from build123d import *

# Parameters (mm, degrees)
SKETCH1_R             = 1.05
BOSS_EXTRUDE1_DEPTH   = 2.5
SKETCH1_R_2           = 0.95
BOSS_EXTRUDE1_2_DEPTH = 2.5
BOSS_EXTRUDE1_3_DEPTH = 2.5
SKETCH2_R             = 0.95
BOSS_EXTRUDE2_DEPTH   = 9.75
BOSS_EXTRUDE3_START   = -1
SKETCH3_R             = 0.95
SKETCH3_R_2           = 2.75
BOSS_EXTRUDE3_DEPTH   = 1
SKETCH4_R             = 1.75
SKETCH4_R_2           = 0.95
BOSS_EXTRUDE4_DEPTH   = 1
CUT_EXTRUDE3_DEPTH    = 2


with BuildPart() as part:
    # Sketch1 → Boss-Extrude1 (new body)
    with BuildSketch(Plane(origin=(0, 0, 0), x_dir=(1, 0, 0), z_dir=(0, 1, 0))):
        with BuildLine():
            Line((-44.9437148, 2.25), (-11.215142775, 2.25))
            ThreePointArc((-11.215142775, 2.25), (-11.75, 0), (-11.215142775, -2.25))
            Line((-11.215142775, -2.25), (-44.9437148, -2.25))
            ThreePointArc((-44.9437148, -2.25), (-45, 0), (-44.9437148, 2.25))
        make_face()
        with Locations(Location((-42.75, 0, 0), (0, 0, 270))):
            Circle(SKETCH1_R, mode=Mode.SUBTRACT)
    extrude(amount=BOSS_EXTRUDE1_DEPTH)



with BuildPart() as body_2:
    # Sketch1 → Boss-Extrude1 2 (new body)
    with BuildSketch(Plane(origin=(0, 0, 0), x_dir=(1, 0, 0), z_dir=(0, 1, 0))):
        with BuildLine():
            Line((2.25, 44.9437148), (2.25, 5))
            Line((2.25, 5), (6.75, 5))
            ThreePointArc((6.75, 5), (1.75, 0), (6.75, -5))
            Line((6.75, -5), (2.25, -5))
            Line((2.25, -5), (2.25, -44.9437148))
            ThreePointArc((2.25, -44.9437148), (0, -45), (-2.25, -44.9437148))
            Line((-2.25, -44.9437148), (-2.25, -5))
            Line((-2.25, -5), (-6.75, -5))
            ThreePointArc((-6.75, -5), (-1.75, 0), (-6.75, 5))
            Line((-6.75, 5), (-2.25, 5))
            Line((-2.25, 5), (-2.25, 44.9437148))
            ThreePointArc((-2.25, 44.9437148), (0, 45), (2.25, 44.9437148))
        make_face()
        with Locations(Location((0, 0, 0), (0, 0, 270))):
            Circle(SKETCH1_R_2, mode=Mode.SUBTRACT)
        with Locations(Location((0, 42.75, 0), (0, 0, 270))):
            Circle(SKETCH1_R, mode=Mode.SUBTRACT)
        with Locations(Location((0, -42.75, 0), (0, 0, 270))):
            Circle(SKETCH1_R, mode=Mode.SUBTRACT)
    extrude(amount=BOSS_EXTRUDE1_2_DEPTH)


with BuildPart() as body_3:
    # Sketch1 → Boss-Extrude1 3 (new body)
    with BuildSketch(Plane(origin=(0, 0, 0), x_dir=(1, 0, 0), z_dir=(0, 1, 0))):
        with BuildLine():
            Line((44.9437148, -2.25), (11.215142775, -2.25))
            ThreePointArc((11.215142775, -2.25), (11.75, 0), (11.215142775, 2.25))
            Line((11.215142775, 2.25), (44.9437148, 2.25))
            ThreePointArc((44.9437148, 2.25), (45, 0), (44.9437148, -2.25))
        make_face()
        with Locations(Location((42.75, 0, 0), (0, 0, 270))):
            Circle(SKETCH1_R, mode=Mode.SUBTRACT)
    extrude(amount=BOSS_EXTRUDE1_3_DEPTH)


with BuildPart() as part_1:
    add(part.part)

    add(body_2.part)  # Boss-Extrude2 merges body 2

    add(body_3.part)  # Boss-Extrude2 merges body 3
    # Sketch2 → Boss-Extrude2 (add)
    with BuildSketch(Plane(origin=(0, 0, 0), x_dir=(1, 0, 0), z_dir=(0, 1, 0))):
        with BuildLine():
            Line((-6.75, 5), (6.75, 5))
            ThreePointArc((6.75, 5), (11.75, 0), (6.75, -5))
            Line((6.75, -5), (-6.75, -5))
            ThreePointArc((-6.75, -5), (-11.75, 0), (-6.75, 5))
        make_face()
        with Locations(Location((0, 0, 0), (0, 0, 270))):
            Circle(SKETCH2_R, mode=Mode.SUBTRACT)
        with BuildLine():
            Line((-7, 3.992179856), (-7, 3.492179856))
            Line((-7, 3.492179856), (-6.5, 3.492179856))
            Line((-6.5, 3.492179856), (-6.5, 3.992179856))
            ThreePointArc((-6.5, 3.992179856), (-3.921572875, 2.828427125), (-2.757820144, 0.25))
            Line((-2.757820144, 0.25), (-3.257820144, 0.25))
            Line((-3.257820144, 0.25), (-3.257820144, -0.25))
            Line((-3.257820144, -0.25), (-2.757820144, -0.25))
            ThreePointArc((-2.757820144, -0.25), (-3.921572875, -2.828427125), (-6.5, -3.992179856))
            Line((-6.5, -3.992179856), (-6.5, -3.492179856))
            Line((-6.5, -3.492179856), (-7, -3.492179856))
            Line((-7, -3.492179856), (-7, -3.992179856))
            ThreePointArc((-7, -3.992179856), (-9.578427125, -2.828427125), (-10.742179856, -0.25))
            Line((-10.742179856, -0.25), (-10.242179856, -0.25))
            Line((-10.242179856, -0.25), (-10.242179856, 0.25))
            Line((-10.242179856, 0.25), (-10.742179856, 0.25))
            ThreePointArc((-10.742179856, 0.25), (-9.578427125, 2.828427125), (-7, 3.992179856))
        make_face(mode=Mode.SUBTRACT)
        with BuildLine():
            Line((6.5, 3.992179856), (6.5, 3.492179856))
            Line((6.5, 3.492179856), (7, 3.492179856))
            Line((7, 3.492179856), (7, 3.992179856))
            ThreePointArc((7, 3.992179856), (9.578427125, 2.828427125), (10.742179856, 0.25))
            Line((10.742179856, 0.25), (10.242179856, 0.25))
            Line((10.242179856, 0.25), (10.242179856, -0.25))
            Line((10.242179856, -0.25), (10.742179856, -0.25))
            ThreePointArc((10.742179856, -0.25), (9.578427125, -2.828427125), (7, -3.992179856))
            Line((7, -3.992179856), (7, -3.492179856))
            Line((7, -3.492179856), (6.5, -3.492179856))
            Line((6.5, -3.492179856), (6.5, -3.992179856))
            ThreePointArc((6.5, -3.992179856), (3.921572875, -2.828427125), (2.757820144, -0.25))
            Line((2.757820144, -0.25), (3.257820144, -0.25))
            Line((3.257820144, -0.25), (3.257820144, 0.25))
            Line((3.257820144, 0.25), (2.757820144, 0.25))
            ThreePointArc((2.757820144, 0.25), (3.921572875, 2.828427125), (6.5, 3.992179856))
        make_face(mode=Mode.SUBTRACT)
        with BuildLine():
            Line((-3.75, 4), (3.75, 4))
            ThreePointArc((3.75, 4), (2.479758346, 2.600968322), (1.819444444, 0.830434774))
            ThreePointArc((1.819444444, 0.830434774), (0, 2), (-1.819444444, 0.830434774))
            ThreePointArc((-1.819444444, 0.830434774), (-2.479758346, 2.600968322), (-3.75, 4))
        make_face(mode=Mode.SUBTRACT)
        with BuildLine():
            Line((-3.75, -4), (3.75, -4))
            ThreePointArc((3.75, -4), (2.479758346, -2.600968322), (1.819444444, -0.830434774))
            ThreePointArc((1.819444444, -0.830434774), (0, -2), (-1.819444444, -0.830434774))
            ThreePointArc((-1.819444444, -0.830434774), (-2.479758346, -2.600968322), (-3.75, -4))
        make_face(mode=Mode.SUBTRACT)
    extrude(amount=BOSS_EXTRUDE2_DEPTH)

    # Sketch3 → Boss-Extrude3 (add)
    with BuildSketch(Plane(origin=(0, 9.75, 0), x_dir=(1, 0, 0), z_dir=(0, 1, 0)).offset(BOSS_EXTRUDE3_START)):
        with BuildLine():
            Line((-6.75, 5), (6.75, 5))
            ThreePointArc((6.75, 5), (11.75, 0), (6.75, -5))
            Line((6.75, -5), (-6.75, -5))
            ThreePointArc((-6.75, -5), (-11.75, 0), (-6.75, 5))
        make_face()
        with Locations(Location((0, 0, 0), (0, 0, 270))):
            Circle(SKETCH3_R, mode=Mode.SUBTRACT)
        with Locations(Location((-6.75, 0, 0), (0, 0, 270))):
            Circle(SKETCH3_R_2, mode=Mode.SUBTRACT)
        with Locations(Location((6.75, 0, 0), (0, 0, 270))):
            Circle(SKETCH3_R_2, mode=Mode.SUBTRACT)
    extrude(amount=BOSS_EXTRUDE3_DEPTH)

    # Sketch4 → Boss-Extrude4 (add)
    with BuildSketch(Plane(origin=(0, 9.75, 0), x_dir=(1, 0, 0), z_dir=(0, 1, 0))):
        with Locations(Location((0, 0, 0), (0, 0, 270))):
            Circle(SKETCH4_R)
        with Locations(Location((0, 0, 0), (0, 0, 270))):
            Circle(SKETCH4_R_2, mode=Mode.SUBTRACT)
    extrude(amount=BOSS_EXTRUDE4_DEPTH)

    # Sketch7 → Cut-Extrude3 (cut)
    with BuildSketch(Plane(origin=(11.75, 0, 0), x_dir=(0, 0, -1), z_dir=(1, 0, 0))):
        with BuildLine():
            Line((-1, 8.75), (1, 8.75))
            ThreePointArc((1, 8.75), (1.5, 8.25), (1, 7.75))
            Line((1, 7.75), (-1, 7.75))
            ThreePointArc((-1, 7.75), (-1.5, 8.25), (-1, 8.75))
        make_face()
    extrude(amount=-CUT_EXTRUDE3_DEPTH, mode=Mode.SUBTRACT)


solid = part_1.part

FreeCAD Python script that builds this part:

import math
import FreeCAD as App
import Part
import Sketcher
Q = App.Units.Quantity

doc = App.newDocument("Part")
body = doc.addObject("PartDesign::Body", "Body")

# Sketch on XZ plane
sketch1 = doc.addObject("Sketcher::SketchObject", "Sketch")
body.addObject(sketch1)
sketch1.AttachmentSupport = (doc.XZ_Plane, [""])
sketch1.MapMode = "FlatFace"
sketch1.addGeometry(Part.LineSegment(App.Vector(-11.2, -2.2, 0), App.Vector(-44.9, -2.2, 0)), False)
sketch1.addGeometry(Part.ArcOfCircle(Part.Circle(App.Vector(0, 0, 0), App.Vector(0, 0, 1), 45), math.radians(177.13), math.radians(182.87)), False)
sketch1.addGeometry(Part.LineSegment(App.Vector(-44.9, 2.2, 0), App.Vector(-11.2, 2.2, 0)), False)
sketch1.addGeometry(Part.ArcOfCircle(Part.Circle(App.Vector(-6.7, 0, 0), App.Vector(0, 0, 1), 5), math.radians(153), math.radians(207)), False)
sketch1.addGeometry(Part.Circle(App.Vector(-42.8, 0, 0), App.Vector(0, 0, 1), 1.1), False)
sketch1.addConstraint(Sketcher.Constraint("Coincident", 0, 2, 1, 2))
sketch1.addConstraint(Sketcher.Constraint("Coincident", 1, 1, 2, 1))
sketch1.addConstraint(Sketcher.Constraint("Coincident", 2, 2, 3, 1))
sketch1.addConstraint(Sketcher.Constraint("Coincident", 3, 2, 0, 1))
sketch1.addConstraint(Sketcher.Constraint("Horizontal", 0))
sketch1.addConstraint(Sketcher.Constraint("Horizontal", 2))
sketch1.addConstraint(Sketcher.Constraint("Coincident", 1, 3, -1, 1))
sketch1.addConstraint(Sketcher.Constraint("Symmetric", 2, 2, 3, 2, -1))
sketch1.addConstraint(Sketcher.Constraint("PointOnObject", 4, 3, -1))
sketch1.addConstraint(Sketcher.Constraint("Radius", 1, Q("45 mm")))
sketch1.addConstraint(Sketcher.Constraint("Radius", 3, Q("5 mm")))
sketch1.addConstraint(Sketcher.Constraint("Diameter", 4, Q("2.1 mm")))
sketch1.addConstraint(Sketcher.Constraint("DistanceX", 4, 3, 3, 3, Q("36 mm")))
sketch1.addConstraint(Sketcher.Constraint("DistanceY", 0, 2, 1, 1, Q("4.5 mm")))
sketch1.addConstraint(Sketcher.Constraint("DistanceX", 3, 3, -1, 1, Q("6.75 mm")))
pad1 = doc.addObject("PartDesign::Pad", "Pad")
body.addObject(pad1)
pad1.Profile = sketch1
pad1.Length = 2.5
pad1.Reversed = True
body2 = doc.addObject("PartDesign::Body", "Body001")

# Sketch on XZ plane
sketch2 = doc.addObject("Sketcher::SketchObject", "Sketch001")
body2.addObject(sketch2)
sketch2.AttachmentSupport = (doc.getObject("XZ_Plane001"), [""])
sketch2.MapMode = "FlatFace"
sketch2.addGeometry(Part.LineSegment(App.Vector(2.2, -5, 0), App.Vector(2.2, -44.9, 0)), False)
sketch2.addGeometry(Part.ArcOfCircle(Part.Circle(App.Vector(0, 0, 0), App.Vector(0, 0, 1), 45), math.radians(-92.87), math.radians(-87.13)), False)
sketch2.addGeometry(Part.LineSegment(App.Vector(-2.2, -44.9, 0), App.Vector(-2.2, -5, 0)), False)
sketch2.addGeometry(Part.LineSegment(App.Vector(-2.2, -5, 0), App.Vector(-6.8, -5, 0)), False)
sketch2.addGeometry(Part.ArcOfCircle(Part.Circle(App.Vector(-6.8, 0, 0), App.Vector(0, 0, 1), 5), math.radians(-90), math.radians(90)), False)
sketch2.addGeometry(Part.LineSegment(App.Vector(-6.8, 5, 0), App.Vector(-2.2, 5, 0)), False)
sketch2.addGeometry(Part.LineSegment(App.Vector(-2.2, 5, 0), App.Vector(-2.2, 44.9, 0)), False)
sketch2.addGeometry(Part.ArcOfCircle(Part.Circle(App.Vector(0, 0, 0), App.Vector(0, 0, 1), 45), math.radians(87.13), math.radians(92.87)), False)
sketch2.addGeometry(Part.LineSegment(App.Vector(2.2, 44.9, 0), App.Vector(2.2, 5, 0)), False)
sketch2.addGeometry(Part.LineSegment(App.Vector(2.2, 5, 0), App.Vector(6.8, 5, 0)), False)
sketch2.addGeometry(Part.ArcOfCircle(Part.Circle(App.Vector(6.8, 0, 0), App.Vector(0, 0, 1), 5), math.radians(90), math.radians(270)), False)
sketch2.addGeometry(Part.LineSegment(App.Vector(6.8, -5, 0), App.Vector(2.2, -5, 0)), False)
sketch2.addGeometry(Part.Circle(App.Vector(0, 42.8, 0), App.Vector(0, 0, 1), 1.1), False)
sketch2.addGeometry(Part.Circle(App.Vector(0, 0, 0), App.Vector(0, 0, 1), 0.9), False)
sketch2.addGeometry(Part.Circle(App.Vector(0, -42.8, 0), App.Vector(0, 0, 1), 1.1), False)
sketch2.addConstraint(Sketcher.Constraint("Coincident", 0, 2, 1, 2))
sketch2.addConstraint(Sketcher.Constraint("Coincident", 1, 1, 2, 1))
sketch2.addConstraint(Sketcher.Constraint("Coincident", 2, 2, 3, 1))
sketch2.addConstraint(Sketcher.Constraint("Tangent", 3, 2, 4, 1))
sketch2.addConstraint(Sketcher.Constraint("Tangent", 4, 2, 5, 1))
sketch2.addConstraint(Sketcher.Constraint("Coincident", 5, 2, 6, 1))
sketch2.addConstraint(Sketcher.Constraint("Coincident", 6, 2, 7, 2))
sketch2.addConstraint(Sketcher.Constraint("Coincident", 7, 1, 8, 1))
sketch2.addConstraint(Sketcher.Constraint("Coincident", 8, 2, 9, 1))
sketch2.addConstraint(Sketcher.Constraint("Tangent", 9, 2, 10, 1))
sketch2.addConstraint(Sketcher.Constraint("Tangent", 10, 2, 11, 1))
sketch2.addConstraint(Sketcher.Constraint("Coincident", 11, 2, 0, 1))
sketch2.addConstraint(Sketcher.Constraint("Vertical", 0))
sketch2.addConstraint(Sketcher.Constraint("Vertical", 2))
sketch2.addConstraint(Sketcher.Constraint("Horizontal", 3))
sketch2.addConstraint(Sketcher.Constraint("Horizontal", 5))
sketch2.addConstraint(Sketcher.Constraint("Vertical", 6))
sketch2.addConstraint(Sketcher.Constraint("Vertical", 8))
sketch2.addConstraint(Sketcher.Constraint("Horizontal", 9))
sketch2.addConstraint(Sketcher.Constraint("Horizontal", 11))
sketch2.addConstraint(Sketcher.Constraint("Coincident", 1, 3, -1, 1))
sketch2.addConstraint(Sketcher.Constraint("Coincident", 7, 3, -1, 1))
sketch2.addConstraint(Sketcher.Constraint("Coincident", 13, 3, -1, 1))
sketch2.addConstraint(Sketcher.Constraint("Equal", 1, 7))
sketch2.addConstraint(Sketcher.Constraint("Equal", 4, 10))
sketch2.addConstraint(Sketcher.Constraint("Equal", 12, 14))
sketch2.addConstraint(Sketcher.Constraint("Symmetric", 4, 3, 10, 3, -1, 1))
sketch2.addConstraint(Sketcher.Constraint("Symmetric", 12, 3, 14, 3, -1, 1))
sketch2.addConstraint(Sketcher.Constraint("Symmetric", 5, 2, 8, 2, -2))
sketch2.addConstraint(Sketcher.Constraint("PointOnObject", 12, 3, -2))
sketch2.addConstraint(Sketcher.Constraint("Horizontal", 0, 2, 1, 1))
sketch2.addConstraint(Sketcher.Constraint("Vertical", 2, 2, 5, 2))
sketch2.addConstraint(Sketcher.Constraint("Radius", 1, Q("45 mm")))
sketch2.addConstraint(Sketcher.Constraint("Radius", 4, Q("5 mm")))
sketch2.addConstraint(Sketcher.Constraint("Diameter", 12, Q("2.1 mm")))
sketch2.addConstraint(Sketcher.Constraint("Diameter", 13, Q("1.9 mm")))
sketch2.addConstraint(Sketcher.Constraint("DistanceX", 3, 2, 3, 1, Q("4.5 mm")))
sketch2.addConstraint(Sketcher.Constraint("DistanceX", 2, 2, 10, 3, Q("9 mm")))
sketch2.addConstraint(Sketcher.Constraint("DistanceY", -1, 1, 12, 3, Q("42.75 mm")))
pad2 = doc.addObject("PartDesign::Pad", "Pad001")
body2.addObject(pad2)
pad2.Profile = sketch2
pad2.Length = 2.5
pad2.Reversed = True
body3 = doc.addObject("PartDesign::Body", "Body002")

# Sketch on XZ plane
sketch3 = doc.addObject("Sketcher::SketchObject", "Sketch002")
body3.addObject(sketch3)
sketch3.AttachmentSupport = (doc.getObject("XZ_Plane002"), [""])
sketch3.MapMode = "FlatFace"
sketch3.addGeometry(Part.LineSegment(App.Vector(11.2, 2.2, 0), App.Vector(44.9, 2.2, 0)), False)
sketch3.addGeometry(Part.ArcOfCircle(Part.Circle(App.Vector(0, 0, 0), App.Vector(0, 0, 1), 45), math.radians(-2.87), math.radians(2.87)), False)
sketch3.addGeometry(Part.LineSegment(App.Vector(44.9, -2.2, 0), App.Vector(11.2, -2.2, 0)), False)
sketch3.addGeometry(Part.ArcOfCircle(Part.Circle(App.Vector(6.7, 0, 0), App.Vector(0, 0, 1), 5), math.radians(-27), math.radians(27)), False)
sketch3.addGeometry(Part.Circle(App.Vector(42.8, 0, 0), App.Vector(0, 0, 1), 1.1), False)
sketch3.addConstraint(Sketcher.Constraint("Coincident", 0, 2, 1, 2))
sketch3.addConstraint(Sketcher.Constraint("Coincident", 1, 1, 2, 1))
sketch3.addConstraint(Sketcher.Constraint("Coincident", 2, 2, 3, 1))
sketch3.addConstraint(Sketcher.Constraint("Coincident", 3, 2, 0, 1))
sketch3.addConstraint(Sketcher.Constraint("Horizontal", 0))
sketch3.addConstraint(Sketcher.Constraint("Horizontal", 2))
sketch3.addConstraint(Sketcher.Constraint("Coincident", 1, 3, -1, 1))
sketch3.addConstraint(Sketcher.Constraint("Symmetric", 2, 2, 3, 2, -1))
sketch3.addConstraint(Sketcher.Constraint("PointOnObject", 4, 3, -1))
sketch3.addConstraint(Sketcher.Constraint("Radius", 1, Q("45 mm")))
sketch3.addConstraint(Sketcher.Constraint("Radius", 3, Q("5 mm")))
sketch3.addConstraint(Sketcher.Constraint("Diameter", 4, Q("2.1 mm")))
sketch3.addConstraint(Sketcher.Constraint("DistanceX", 3, 3, 4, 3, Q("36 mm")))
sketch3.addConstraint(Sketcher.Constraint("DistanceY", 1, 1, 0, 2, Q("4.5 mm")))
sketch3.addConstraint(Sketcher.Constraint("DistanceX", -1, 1, 3, 3, Q("6.75 mm")))
pad3 = doc.addObject("PartDesign::Pad", "Pad002")
body3.addObject(pad3)
pad3.Profile = sketch3
pad3.Length = 2.5
pad3.Reversed = True
body.AllowCompound = True
doc.recompute()

boolean = doc.addObject("PartDesign::Boolean", "Boolean")
body.addObject(boolean)
boolean.Type = "Fuse"
boolean.addObjects([body2])
doc.recompute()

boolean2 = doc.addObject("PartDesign::Boolean", "Boolean001")
body.addObject(boolean2)
boolean2.Type = "Fuse"
boolean2.addObjects([body3])

# Sketch on XZ plane
sketch4 = doc.addObject("Sketcher::SketchObject", "Sketch003")
body.addObject(sketch4)
sketch4.AttachmentSupport = (doc.XZ_Plane, [""])
sketch4.MapMode = "FlatFace"
sketch4.addGeometry(Part.LineSegment(App.Vector(6.8, -5, 0), App.Vector(-6.8, -5, 0)), False)
sketch4.addGeometry(Part.ArcOfCircle(Part.Circle(App.Vector(-6.8, 0, 0), App.Vector(0, 0, 1), 5), math.radians(90), math.radians(270)), False)
sketch4.addGeometry(Part.LineSegment(App.Vector(-6.8, 5, 0), App.Vector(6.8, 5, 0)), False)
sketch4.addGeometry(Part.ArcOfCircle(Part.Circle(App.Vector(6.8, 0, 0), App.Vector(0, 0, 1), 5), math.radians(-90), math.radians(90)), False)
sketch4.addGeometry(Part.LineSegment(App.Vector(6.5, -4, 0), App.Vector(6.5, -3.5, 0)), False)
sketch4.addGeometry(Part.LineSegment(App.Vector(6.5, -3.5, 0), App.Vector(7, -3.5, 0)), False)
sketch4.addGeometry(Part.LineSegment(App.Vector(7, -3.5, 0), App.Vector(7, -4, 0)), False)
sketch4.addGeometry(Part.ArcOfCircle(Part.Circle(App.Vector(6.8, 0, 0), App.Vector(0, 0, 1), 4), math.radians(-86), math.radians(-4)), False)
sketch4.addGeometry(Part.LineSegment(App.Vector(10.7, -0.2, 0), App.Vector(10.2, -0.2, 0)), False)
sketch4.addGeometry(Part.LineSegment(App.Vector(10.2, -0.2, 0), App.Vector(10.2, 0.2, 0)), False)
sketch4.addGeometry(Part.LineSegment(App.Vector(10.2, 0.2, 0), App.Vector(10.7, 0.2, 0)), False)
sketch4.addGeometry(Part.ArcOfCircle(Part.Circle(App.Vector(6.8, 0, 0), App.Vector(0, 0, 1), 4), math.radians(4), math.radians(86)), False)
sketch4.addGeometry(Part.LineSegment(App.Vector(7, 4, 0), App.Vector(7, 3.5, 0)), False)
sketch4.addGeometry(Part.LineSegment(App.Vector(7, 3.5, 0), App.Vector(6.5, 3.5, 0)), False)
sketch4.addGeometry(Part.LineSegment(App.Vector(6.5, 3.5, 0), App.Vector(6.5, 4, 0)), False)
sketch4.addGeometry(Part.ArcOfCircle(Part.Circle(App.Vector(6.8, 0, 0), App.Vector(0, 0, 1), 4), math.radians(94), math.radians(176)), False)
sketch4.addGeometry(Part.LineSegment(App.Vector(2.8, 0.2, 0), App.Vector(3.3, 0.2, 0)), False)
sketch4.addGeometry(Part.LineSegment(App.Vector(3.3, 0.2, 0), App.Vector(3.3, -0.2, 0)), False)
sketch4.addGeometry(Part.LineSegment(App.Vector(3.3, -0.2, 0), App.Vector(2.8, -0.2, 0)), False)
sketch4.addGeometry(Part.ArcOfCircle(Part.Circle(App.Vector(6.8, 0, 0), App.Vector(0, 0, 1), 4), math.radians(-176), math.radians(-94)), False)
sketch4.addGeometry(Part.ArcOfCircle(Part.Circle(App.Vector(-6.8, 0, 0), App.Vector(0, 0, 1), 5), math.radians(10), math.radians(53)), False)
sketch4.addGeometry(Part.ArcOfCircle(Part.Circle(App.Vector(0, 0, 0), App.Vector(0, 0, 1), 2), math.radians(25), math.radians(155)), False)
sketch4.addGeometry(Part.ArcOfCircle(Part.Circle(App.Vector(6.8, 0, 0), App.Vector(0, 0, 1), 5), math.radians(127), math.radians(170)), False)
sketch4.addGeometry(Part.LineSegment(App.Vector(3.8, 4, 0), App.Vector(-3.8, 4, 0)), False)
sketch4.addGeometry(Part.Circle(App.Vector(0, 0, 0), App.Vector(0, 0, 1), 0.9), False)
sketch4.addGeometry(Part.LineSegment(App.Vector(-7, -4, 0), App.Vector(-7, -3.5, 0)), False)
sketch4.addGeometry(Part.LineSegment(App.Vector(-7, -3.5, 0), App.Vector(-6.5, -3.5, 0)), False)
sketch4.addGeometry(Part.LineSegment(App.Vector(-6.5, -3.5, 0), App.Vector(-6.5, -4, 0)), False)
sketch4.addGeometry(Part.ArcOfCircle(Part.Circle(App.Vector(-6.8, 0, 0), App.Vector(0, 0, 1), 4), math.radians(-86), math.radians(-4)), False)
sketch4.addGeometry(Part.LineSegment(App.Vector(-2.8, -0.2, 0), App.Vector(-3.3, -0.2, 0)), False)
sketch4.addGeometry(Part.LineSegment(App.Vector(-3.3, -0.2, 0), App.Vector(-3.3, 0.2, 0)), False)
sketch4.addGeometry(Part.LineSegment(App.Vector(-3.3, 0.2, 0), App.Vector(-2.8, 0.2, 0)), False)
sketch4.addGeometry(Part.ArcOfCircle(Part.Circle(App.Vector(-6.8, 0, 0), App.Vector(0, 0, 1), 4), math.radians(4), math.radians(86)), False)
sketch4.addGeometry(Part.LineSegment(App.Vector(-6.5, 4, 0), App.Vector(-6.5, 3.5, 0)), False)
sketch4.addGeometry(Part.LineSegment(App.Vector(-6.5, 3.5, 0), App.Vector(-7, 3.5, 0)), False)
sketch4.addGeometry(Part.LineSegment(App.Vector(-7, 3.5, 0), App.Vector(-7, 4, 0)), False)
sketch4.addGeometry(Part.ArcOfCircle(Part.Circle(App.Vector(-6.8, 0, 0), App.Vector(0, 0, 1), 4), math.radians(94), math.radians(176)), False)
sketch4.addGeometry(Part.LineSegment(App.Vector(-10.7, 0.2, 0), App.Vector(-10.2, 0.2, 0)), False)
sketch4.addGeometry(Part.LineSegment(App.Vector(-10.2, 0.2, 0), App.Vector(-10.2, -0.2, 0)), False)
sketch4.addGeometry(Part.LineSegment(App.Vector(-10.2, -0.2, 0), App.Vector(-10.7, -0.2, 0)), False)
sketch4.addGeometry(Part.ArcOfCircle(Part.Circle(App.Vector(-6.8, 0, 0), App.Vector(0, 0, 1), 4), math.radians(-176), math.radians(-94)), False)
sketch4.addGeometry(Part.LineSegment(App.Vector(-3.8, -4, 0), App.Vector(3.8, -4, 0)), False)
sketch4.addGeometry(Part.ArcOfCircle(Part.Circle(App.Vector(6.8, 0, 0), App.Vector(0, 0, 1), 5), math.radians(-170), math.radians(-127)), False)
sketch4.addGeometry(Part.ArcOfCircle(Part.Circle(App.Vector(0, 0, 0), App.Vector(0, 0, 1), 2), math.radians(-155), math.radians(-25)), False)
sketch4.addGeometry(Part.ArcOfCircle(Part.Circle(App.Vector(-6.8, 0, 0), App.Vector(0, 0, 1), 5), math.radians(-53), math.radians(-10)), False)
sketch4.addConstraint(Sketcher.Constraint("Tangent", 0, 2, 1, 2))
sketch4.addConstraint(Sketcher.Constraint("Tangent", 1, 1, 2, 1))
sketch4.addConstraint(Sketcher.Constraint("Tangent", 2, 2, 3, 2))
sketch4.addConstraint(Sketcher.Constraint("Tangent", 3, 1, 0, 1))
sketch4.addConstraint(Sketcher.Constraint("Coincident", 4, 2, 5, 1))
sketch4.addConstraint(Sketcher.Constraint("Coincident", 5, 2, 6, 1))
sketch4.addConstraint(Sketcher.Constraint("Coincident", 6, 2, 7, 1))
sketch4.addConstraint(Sketcher.Constraint("Coincident", 7, 2, 8, 1))
sketch4.addConstraint(Sketcher.Constraint("Coincident", 8, 2, 9, 1))
sketch4.addConstraint(Sketcher.Constraint("Coincident", 9, 2, 10, 1))
sketch4.addConstraint(Sketcher.Constraint("Coincident", 10, 2, 11, 1))
sketch4.addConstraint(Sketcher.Constraint("Coincident", 11, 2, 12, 1))
sketch4.addConstraint(Sketcher.Constraint("Coincident", 12, 2, 13, 1))
sketch4.addConstraint(Sketcher.Constraint("Coincident", 13, 2, 14, 1))
sketch4.addConstraint(Sketcher.Constraint("Coincident", 14, 2, 15, 1))
sketch4.addConstraint(Sketcher.Constraint("Coincident", 15, 2, 16, 1))
sketch4.addConstraint(Sketcher.Constraint("Coincident", 16, 2, 17, 1))
sketch4.addConstraint(Sketcher.Constraint("Coincident", 17, 2, 18, 1))
sketch4.addConstraint(Sketcher.Constraint("Coincident", 18, 2, 19, 1))
sketch4.addConstraint(Sketcher.Constraint("Coincident", 19, 2, 4, 1))
sketch4.addConstraint(Sketcher.Constraint("Coincident", 20, 1, 21, 2))
sketch4.addConstraint(Sketcher.Constraint("Coincident", 21, 1, 22, 2))
sketch4.addConstraint(Sketcher.Constraint("Coincident", 22, 1, 23, 1))
sketch4.addConstraint(Sketcher.Constraint("Coincident", 23, 2, 20, 2))
sketch4.addConstraint(Sketcher.Constraint("Coincident", 25, 2, 26, 1))
sketch4.addConstraint(Sketcher.Constraint("Coincident", 26, 2, 27, 1))
sketch4.addConstraint(Sketcher.Constraint("Coincident", 27, 2, 28, 1))
sketch4.addConstraint(Sketcher.Constraint("Coincident", 28, 2, 29, 1))
sketch4.addConstraint(Sketcher.Constraint("Coincident", 29, 2, 30, 1))
sketch4.addConstraint(Sketcher.Constraint("Coincident", 30, 2, 31, 1))
sketch4.addConstraint(Sketcher.Constraint("Coincident", 31, 2, 32, 1))
sketch4.addConstraint(Sketcher.Constraint("Coincident", 32, 2, 33, 1))
sketch4.addConstraint(Sketcher.Constraint("Coincident", 33, 2, 34, 1))
sketch4.addConstraint(Sketcher.Constraint("Coincident", 34, 2, 35, 1))
sketch4.addConstraint(Sketcher.Constraint("Coincident", 35, 2, 36, 1))
sketch4.addConstraint(Sketcher.Constraint("Coincident", 36, 2, 37, 1))
sketch4.addConstraint(Sketcher.Constraint("Coincident", 37, 2, 38, 1))
sketch4.addConstraint(Sketcher.Constraint("Coincident", 38, 2, 39, 1))
sketch4.addConstraint(Sketcher.Constraint("Coincident", 39, 2, 40, 1))
sketch4.addConstraint(Sketcher.Constraint("Coincident", 40, 2, 25, 1))
sketch4.addConstraint(Sketcher.Constraint("Coincident", 41, 2, 42, 2))
sketch4.addConstraint(Sketcher.Constraint("Coincident", 42, 1, 43, 2))
sketch4.addConstraint(Sketcher.Constraint("Coincident", 43, 1, 44, 2))
sketch4.addConstraint(Sketcher.Constraint("Coincident", 44, 1, 41, 1))
sketch4.addConstraint(Sketcher.Constraint("Horizontal", 0))
sketch4.addConstraint(Sketcher.Constraint("Horizontal", 2))
sketch4.addConstraint(Sketcher.Constraint("Vertical", 4))
sketch4.addConstraint(Sketcher.Constraint("Horizontal", 5))
sketch4.addConstraint(Sketcher.Constraint("Vertical", 6))
sketch4.addConstraint(Sketcher.Constraint("Horizontal", 8))
sketch4.addConstraint(Sketcher.Constraint("Vertical", 9))
sketch4.addConstraint(Sketcher.Constraint("Horizontal", 10))
sketch4.addConstraint(Sketcher.Constraint("Vertical", 12))
sketch4.addConstraint(Sketcher.Constraint("Horizontal", 13))
sketch4.addConstraint(Sketcher.Constraint("Vertical", 14))
sketch4.addConstraint(Sketcher.Constraint("Horizontal", 16))
sketch4.addConstraint(Sketcher.Constraint("Vertical", 17))
sketch4.addConstraint(Sketcher.Constraint("Horizontal", 18))
sketch4.addConstraint(Sketcher.Constraint("Horizontal", 23))
sketch4.addConstraint(Sketcher.Constraint("Vertical", 25))
sketch4.addConstraint(Sketcher.Constraint("Horizontal", 26))
sketch4.addConstraint(Sketcher.Constraint("Vertical", 27))
sketch4.addConstraint(Sketcher.Constraint("Horizontal", 29))
sketch4.addConstraint(Sketcher.Constraint("Vertical", 30))
sketch4.addConstraint(Sketcher.Constraint("Horizontal", 31))
sketch4.addConstraint(Sketcher.Constraint("Vertical", 33))
sketch4.addConstraint(Sketcher.Constraint("Horizontal", 34))
sketch4.addConstraint(Sketcher.Constraint("Vertical", 35))
sketch4.addConstraint(Sketcher.Constraint("Horizontal", 37))
sketch4.addConstraint(Sketcher.Constraint("Vertical", 38))
sketch4.addConstraint(Sketcher.Constraint("Horizontal", 39))
sketch4.addConstraint(Sketcher.Constraint("Horizontal", 41))
sketch4.addConstraint(Sketcher.Constraint("Coincident", 21, 3, -1, 1))
sketch4.addConstraint(Sketcher.Constraint("Coincident", 24, 3, -1, 1))
sketch4.addConstraint(Sketcher.Constraint("Coincident", 43, 3, -1, 1))
sketch4.addConstraint(Sketcher.Constraint("Coincident", 7, 3, 3, 3))
sketch4.addConstraint(Sketcher.Constraint("Coincident", 11, 3, 3, 3))
sketch4.addConstraint(Sketcher.Constraint("Coincident", 15, 3, 3, 3))
sketch4.addConstraint(Sketcher.Constraint("Coincident", 19, 3, 3, 3))
sketch4.addConstraint(Sketcher.Constraint("Coincident", 20, 3, 1, 3))
sketch4.addConstraint(Sketcher.Constraint("Coincident", 22, 3, 3, 3))
sketch4.addConstraint(Sketcher.Constraint("Coincident", 28, 3, 1, 3))
sketch4.addConstraint(Sketcher.Constraint("Coincident", 32, 3, 1, 3))
sketch4.addConstraint(Sketcher.Constraint("Coincident", 36, 3, 1, 3))
sketch4.addConstraint(Sketcher.Constraint("Coincident", 40, 3, 1, 3))
sketch4.addConstraint(Sketcher.Constraint("Coincident", 42, 3, 3, 3))
sketch4.addConstraint(Sketcher.Constraint("Coincident", 44, 3, 1, 3))
sketch4.addConstraint(Sketcher.Constraint("Equal", 7, 11))
sketch4.addConstraint(Sketcher.Constraint("Equal", 11, 15))
sketch4.addConstraint(Sketcher.Constraint("Equal", 15, 19))
sketch4.addConstraint(Sketcher.Constraint("Equal", 3, 20))
sketch4.addConstraint(Sketcher.Constraint("Equal", 20, 22))
sketch4.addConstraint(Sketcher.Constraint("Equal", 19, 28))
sketch4.addConstraint(Sketcher.Constraint("Equal", 28, 32))
sketch4.addConstraint(Sketcher.Constraint("Equal", 32, 36))
sketch4.addConstraint(Sketcher.Constraint("Equal", 36, 40))
sketch4.addConstraint(Sketcher.Constraint("Equal", 22, 42))
sketch4.addConstraint(Sketcher.Constraint("Equal", 21, 43))
sketch4.addConstraint(Sketcher.Constraint("Equal", 42, 44))
sketch4.addConstraint(Sketcher.Constraint("Symmetric", 1, 3, 3, 3, -1, 1))
sketch4.addConstraint(Sketcher.Constraint("Symmetric", 12, 2, 25, 2, -1, 1))
sketch4.addConstraint(Sketcher.Constraint("Symmetric", 16, 2, 29, 2, -1, 1))
sketch4.addConstraint(Sketcher.Constraint("Symmetric", 4, 2, 33, 2, -1, 1))
sketch4.addConstraint(Sketcher.Constraint("Symmetric", 8, 2, 37, 2, -1, 1))
sketch4.addConstraint(Sketcher.Constraint("Symmetric", 5, 2, 25, 2, -2))
sketch4.addConstraint(Sketcher.Constraint("Horizontal", 11, 2, 14, 2))
sketch4.addConstraint(Sketcher.Constraint("Horizontal", 10, 2, 15, 2))
sketch4.addConstraint(Sketcher.Constraint("Horizontal", 8, 2, 17, 2))
sketch4.addConstraint(Sketcher.Constraint("Horizontal", 6, 2, 19, 2))
sketch4.addConstraint(Sketcher.Constraint("Horizontal", 19, 2, 27, 2))
sketch4.addConstraint(Sketcher.Constraint("Horizontal", 18, 2, 28, 2))
sketch4.addConstraint(Sketcher.Constraint("Horizontal", 16, 2, 30, 2))
sketch4.addConstraint(Sketcher.Constraint("Horizontal", 32, 2, 35, 2))
sketch4.addConstraint(Sketcher.Constraint("Horizontal", 29, 2, 38, 2))
sketch4.addConstraint(Sketcher.Constraint("Vertical", 22, 1, 41, 2))
sketch4.addConstraint(Sketcher.Constraint("Equal", 5, 8))
sketch4.addConstraint(Sketcher.Constraint("Equal", 13, 16))
sketch4.addConstraint(Sketcher.Constraint("Equal", 39, 4))
sketch4.addConstraint(Sketcher.Constraint("Equal", 6, 9))
sketch4.addConstraint(Sketcher.Constraint("Radius", 1, Q("5 mm")))
sketch4.addConstraint(Sketcher.Constraint("Radius", 7, Q("4 mm")))
sketch4.addConstraint(Sketcher.Constraint("Radius", 21, Q("2 mm")))
sketch4.addConstraint(Sketcher.Constraint("Diameter", 24, Q("1.9 mm")))
sketch4.addConstraint(Sketcher.Constraint("DistanceX", 0, 2, 0, 1, Q("13.5 mm")))
sketch4.addConstraint(Sketcher.Constraint("DistanceX", 5, 1, 5, 2, Q("0.5 mm")))
sketch4.addConstraint(Sketcher.Constraint("DistanceX", 23, 2, 23, 1, Q("7.5 mm")))
pad4 = doc.addObject("PartDesign::Pad", "Pad003")
body.addObject(pad4)
pad4.Profile = sketch4
pad4.Length = 9.75
pad4.Reversed = True

# Sketch on XZ plane
sketch5 = doc.addObject("Sketcher::SketchObject", "Sketch004")
body.addObject(sketch5)
sketch5.AttachmentSupport = (doc.XZ_Plane, [""])
sketch5.MapMode = "FlatFace"
sketch5.AttachmentOffset = App.Placement(App.Vector(0, 0, -8.75), App.Rotation())
sketch5.addGeometry(Part.LineSegment(App.Vector(6.8, -5, 0), App.Vector(-6.8, -5, 0)), False)
sketch5.addGeometry(Part.ArcOfCircle(Part.Circle(App.Vector(-6.8, 0, 0), App.Vector(0, 0, 1), 5), math.radians(90), math.radians(270)), False)
sketch5.addGeometry(Part.LineSegment(App.Vector(-6.8, 5, 0), App.Vector(6.8, 5, 0)), False)
sketch5.addGeometry(Part.ArcOfCircle(Part.Circle(App.Vector(6.8, 0, 0), App.Vector(0, 0, 1), 5), math.radians(-90), math.radians(90)), False)
sketch5.addGeometry(Part.Circle(App.Vector(6.8, 0, 0), App.Vector(0, 0, 1), 2.8), False)
sketch5.addGeometry(Part.Circle(App.Vector(0, 0, 0), App.Vector(0, 0, 1), 0.9), False)
sketch5.addGeometry(Part.Circle(App.Vector(-6.8, 0, 0), App.Vector(0, 0, 1), 2.8), False)
sketch5.addConstraint(Sketcher.Constraint("Tangent", 0, 2, 1, 2))
sketch5.addConstraint(Sketcher.Constraint("Tangent", 1, 1, 2, 1))
sketch5.addConstraint(Sketcher.Constraint("Tangent", 2, 2, 3, 2))
sketch5.addConstraint(Sketcher.Constraint("Tangent", 3, 1, 0, 1))
sketch5.addConstraint(Sketcher.Constraint("Horizontal", 0))
sketch5.addConstraint(Sketcher.Constraint("Horizontal", 2))
sketch5.addConstraint(Sketcher.Constraint("Coincident", 5, 3, -1, 1))
sketch5.addConstraint(Sketcher.Constraint("Coincident", 4, 3, 3, 3))
sketch5.addConstraint(Sketcher.Constraint("Coincident", 6, 3, 1, 3))
sketch5.addConstraint(Sketcher.Constraint("Equal", 4, 6))
sketch5.addConstraint(Sketcher.Constraint("Symmetric", 1, 3, 3, 3, -1, 1))
sketch5.addConstraint(Sketcher.Constraint("Radius", 1, Q("5 mm")))
sketch5.addConstraint(Sketcher.Constraint("Diameter", 4, Q("5.5 mm")))
sketch5.addConstraint(Sketcher.Constraint("Diameter", 5, Q("1.9 mm")))
sketch5.addConstraint(Sketcher.Constraint("DistanceX", 0, 2, 0, 1, Q("13.5 mm")))
pad5 = doc.addObject("PartDesign::Pad", "Pad004")
body.addObject(pad5)
pad5.Profile = sketch5
pad5.Length = 1
pad5.Reversed = True

# Sketch on XZ plane
sketch6 = doc.addObject("Sketcher::SketchObject", "Sketch005")
body.addObject(sketch6)
sketch6.AttachmentSupport = (doc.XZ_Plane, [""])
sketch6.MapMode = "FlatFace"
sketch6.AttachmentOffset = App.Placement(App.Vector(0, 0, -9.75), App.Rotation())
sketch6.addGeometry(Part.Circle(App.Vector(0, 0, 0), App.Vector(0, 0, 1), 1.8), False)
sketch6.addGeometry(Part.Circle(App.Vector(0, 0, 0), App.Vector(0, 0, 1), 0.9), False)
sketch6.addConstraint(Sketcher.Constraint("Coincident", 0, 3, -1, 1))
sketch6.addConstraint(Sketcher.Constraint("Coincident", 1, 3, -1, 1))
sketch6.addConstraint(Sketcher.Constraint("Diameter", 0, Q("3.5 mm")))
sketch6.addConstraint(Sketcher.Constraint("Diameter", 1, Q("1.9 mm")))
pad6 = doc.addObject("PartDesign::Pad", "Pad005")
body.addObject(pad6)
pad6.Profile = sketch6
pad6.Length = 1
pad6.Reversed = True

# Sketch on YZ plane
sketch7 = doc.addObject("Sketcher::SketchObject", "Sketch006")
body.addObject(sketch7)
sketch7.AttachmentSupport = (doc.YZ_Plane, [""])
sketch7.MapMode = "FlatFace"
sketch7.AttachmentOffset = App.Placement(App.Vector(0, 0, 11.75), App.Rotation())
sketch7.addGeometry(Part.LineSegment(App.Vector(8.8, -1, 0), App.Vector(8.8, 1, 0)), False)
sketch7.addGeometry(Part.ArcOfCircle(Part.Circle(App.Vector(8.2, 1, 0), App.Vector(0, 0, 1), 0.5), math.radians(0), math.radians(180)), False)
sketch7.addGeometry(Part.LineSegment(App.Vector(7.8, 1, 0), App.Vector(7.8, -1, 0)), False)
sketch7.addGeometry(Part.ArcOfCircle(Part.Circle(App.Vector(8.2, -1, 0), App.Vector(0, 0, 1), 0.5), math.radians(180), math.radians(360)), False)
sketch7.addConstraint(Sketcher.Constraint("Tangent", 0, 2, 1, 1))
sketch7.addConstraint(Sketcher.Constraint("Tangent", 1, 2, 2, 1))
sketch7.addConstraint(Sketcher.Constraint("Tangent", 2, 2, 3, 1))
sketch7.addConstraint(Sketcher.Constraint("Tangent", 3, 2, 0, 1))
sketch7.addConstraint(Sketcher.Constraint("Vertical", 0))
sketch7.addConstraint(Sketcher.Constraint("Vertical", 2))
sketch7.addConstraint(Sketcher.Constraint("Radius", 1, Q("0.5 mm")))
sketch7.addConstraint(Sketcher.Constraint("DistanceY", 0, 1, 0, 2, Q("2 mm")))
sketch7.addConstraint(Sketcher.Constraint("DistanceY", -1, 1, 1, 3, Q("1 mm")))
sketch7.addConstraint(Sketcher.Constraint("DistanceX", -1, 1, 1, 3, Q("8.25 mm")))
pocket1 = doc.addObject("PartDesign::Pocket", "Pocket")
body.addObject(pocket1)
pocket1.Profile = sketch7
pocket1.Length = 2

doc.recompute()
